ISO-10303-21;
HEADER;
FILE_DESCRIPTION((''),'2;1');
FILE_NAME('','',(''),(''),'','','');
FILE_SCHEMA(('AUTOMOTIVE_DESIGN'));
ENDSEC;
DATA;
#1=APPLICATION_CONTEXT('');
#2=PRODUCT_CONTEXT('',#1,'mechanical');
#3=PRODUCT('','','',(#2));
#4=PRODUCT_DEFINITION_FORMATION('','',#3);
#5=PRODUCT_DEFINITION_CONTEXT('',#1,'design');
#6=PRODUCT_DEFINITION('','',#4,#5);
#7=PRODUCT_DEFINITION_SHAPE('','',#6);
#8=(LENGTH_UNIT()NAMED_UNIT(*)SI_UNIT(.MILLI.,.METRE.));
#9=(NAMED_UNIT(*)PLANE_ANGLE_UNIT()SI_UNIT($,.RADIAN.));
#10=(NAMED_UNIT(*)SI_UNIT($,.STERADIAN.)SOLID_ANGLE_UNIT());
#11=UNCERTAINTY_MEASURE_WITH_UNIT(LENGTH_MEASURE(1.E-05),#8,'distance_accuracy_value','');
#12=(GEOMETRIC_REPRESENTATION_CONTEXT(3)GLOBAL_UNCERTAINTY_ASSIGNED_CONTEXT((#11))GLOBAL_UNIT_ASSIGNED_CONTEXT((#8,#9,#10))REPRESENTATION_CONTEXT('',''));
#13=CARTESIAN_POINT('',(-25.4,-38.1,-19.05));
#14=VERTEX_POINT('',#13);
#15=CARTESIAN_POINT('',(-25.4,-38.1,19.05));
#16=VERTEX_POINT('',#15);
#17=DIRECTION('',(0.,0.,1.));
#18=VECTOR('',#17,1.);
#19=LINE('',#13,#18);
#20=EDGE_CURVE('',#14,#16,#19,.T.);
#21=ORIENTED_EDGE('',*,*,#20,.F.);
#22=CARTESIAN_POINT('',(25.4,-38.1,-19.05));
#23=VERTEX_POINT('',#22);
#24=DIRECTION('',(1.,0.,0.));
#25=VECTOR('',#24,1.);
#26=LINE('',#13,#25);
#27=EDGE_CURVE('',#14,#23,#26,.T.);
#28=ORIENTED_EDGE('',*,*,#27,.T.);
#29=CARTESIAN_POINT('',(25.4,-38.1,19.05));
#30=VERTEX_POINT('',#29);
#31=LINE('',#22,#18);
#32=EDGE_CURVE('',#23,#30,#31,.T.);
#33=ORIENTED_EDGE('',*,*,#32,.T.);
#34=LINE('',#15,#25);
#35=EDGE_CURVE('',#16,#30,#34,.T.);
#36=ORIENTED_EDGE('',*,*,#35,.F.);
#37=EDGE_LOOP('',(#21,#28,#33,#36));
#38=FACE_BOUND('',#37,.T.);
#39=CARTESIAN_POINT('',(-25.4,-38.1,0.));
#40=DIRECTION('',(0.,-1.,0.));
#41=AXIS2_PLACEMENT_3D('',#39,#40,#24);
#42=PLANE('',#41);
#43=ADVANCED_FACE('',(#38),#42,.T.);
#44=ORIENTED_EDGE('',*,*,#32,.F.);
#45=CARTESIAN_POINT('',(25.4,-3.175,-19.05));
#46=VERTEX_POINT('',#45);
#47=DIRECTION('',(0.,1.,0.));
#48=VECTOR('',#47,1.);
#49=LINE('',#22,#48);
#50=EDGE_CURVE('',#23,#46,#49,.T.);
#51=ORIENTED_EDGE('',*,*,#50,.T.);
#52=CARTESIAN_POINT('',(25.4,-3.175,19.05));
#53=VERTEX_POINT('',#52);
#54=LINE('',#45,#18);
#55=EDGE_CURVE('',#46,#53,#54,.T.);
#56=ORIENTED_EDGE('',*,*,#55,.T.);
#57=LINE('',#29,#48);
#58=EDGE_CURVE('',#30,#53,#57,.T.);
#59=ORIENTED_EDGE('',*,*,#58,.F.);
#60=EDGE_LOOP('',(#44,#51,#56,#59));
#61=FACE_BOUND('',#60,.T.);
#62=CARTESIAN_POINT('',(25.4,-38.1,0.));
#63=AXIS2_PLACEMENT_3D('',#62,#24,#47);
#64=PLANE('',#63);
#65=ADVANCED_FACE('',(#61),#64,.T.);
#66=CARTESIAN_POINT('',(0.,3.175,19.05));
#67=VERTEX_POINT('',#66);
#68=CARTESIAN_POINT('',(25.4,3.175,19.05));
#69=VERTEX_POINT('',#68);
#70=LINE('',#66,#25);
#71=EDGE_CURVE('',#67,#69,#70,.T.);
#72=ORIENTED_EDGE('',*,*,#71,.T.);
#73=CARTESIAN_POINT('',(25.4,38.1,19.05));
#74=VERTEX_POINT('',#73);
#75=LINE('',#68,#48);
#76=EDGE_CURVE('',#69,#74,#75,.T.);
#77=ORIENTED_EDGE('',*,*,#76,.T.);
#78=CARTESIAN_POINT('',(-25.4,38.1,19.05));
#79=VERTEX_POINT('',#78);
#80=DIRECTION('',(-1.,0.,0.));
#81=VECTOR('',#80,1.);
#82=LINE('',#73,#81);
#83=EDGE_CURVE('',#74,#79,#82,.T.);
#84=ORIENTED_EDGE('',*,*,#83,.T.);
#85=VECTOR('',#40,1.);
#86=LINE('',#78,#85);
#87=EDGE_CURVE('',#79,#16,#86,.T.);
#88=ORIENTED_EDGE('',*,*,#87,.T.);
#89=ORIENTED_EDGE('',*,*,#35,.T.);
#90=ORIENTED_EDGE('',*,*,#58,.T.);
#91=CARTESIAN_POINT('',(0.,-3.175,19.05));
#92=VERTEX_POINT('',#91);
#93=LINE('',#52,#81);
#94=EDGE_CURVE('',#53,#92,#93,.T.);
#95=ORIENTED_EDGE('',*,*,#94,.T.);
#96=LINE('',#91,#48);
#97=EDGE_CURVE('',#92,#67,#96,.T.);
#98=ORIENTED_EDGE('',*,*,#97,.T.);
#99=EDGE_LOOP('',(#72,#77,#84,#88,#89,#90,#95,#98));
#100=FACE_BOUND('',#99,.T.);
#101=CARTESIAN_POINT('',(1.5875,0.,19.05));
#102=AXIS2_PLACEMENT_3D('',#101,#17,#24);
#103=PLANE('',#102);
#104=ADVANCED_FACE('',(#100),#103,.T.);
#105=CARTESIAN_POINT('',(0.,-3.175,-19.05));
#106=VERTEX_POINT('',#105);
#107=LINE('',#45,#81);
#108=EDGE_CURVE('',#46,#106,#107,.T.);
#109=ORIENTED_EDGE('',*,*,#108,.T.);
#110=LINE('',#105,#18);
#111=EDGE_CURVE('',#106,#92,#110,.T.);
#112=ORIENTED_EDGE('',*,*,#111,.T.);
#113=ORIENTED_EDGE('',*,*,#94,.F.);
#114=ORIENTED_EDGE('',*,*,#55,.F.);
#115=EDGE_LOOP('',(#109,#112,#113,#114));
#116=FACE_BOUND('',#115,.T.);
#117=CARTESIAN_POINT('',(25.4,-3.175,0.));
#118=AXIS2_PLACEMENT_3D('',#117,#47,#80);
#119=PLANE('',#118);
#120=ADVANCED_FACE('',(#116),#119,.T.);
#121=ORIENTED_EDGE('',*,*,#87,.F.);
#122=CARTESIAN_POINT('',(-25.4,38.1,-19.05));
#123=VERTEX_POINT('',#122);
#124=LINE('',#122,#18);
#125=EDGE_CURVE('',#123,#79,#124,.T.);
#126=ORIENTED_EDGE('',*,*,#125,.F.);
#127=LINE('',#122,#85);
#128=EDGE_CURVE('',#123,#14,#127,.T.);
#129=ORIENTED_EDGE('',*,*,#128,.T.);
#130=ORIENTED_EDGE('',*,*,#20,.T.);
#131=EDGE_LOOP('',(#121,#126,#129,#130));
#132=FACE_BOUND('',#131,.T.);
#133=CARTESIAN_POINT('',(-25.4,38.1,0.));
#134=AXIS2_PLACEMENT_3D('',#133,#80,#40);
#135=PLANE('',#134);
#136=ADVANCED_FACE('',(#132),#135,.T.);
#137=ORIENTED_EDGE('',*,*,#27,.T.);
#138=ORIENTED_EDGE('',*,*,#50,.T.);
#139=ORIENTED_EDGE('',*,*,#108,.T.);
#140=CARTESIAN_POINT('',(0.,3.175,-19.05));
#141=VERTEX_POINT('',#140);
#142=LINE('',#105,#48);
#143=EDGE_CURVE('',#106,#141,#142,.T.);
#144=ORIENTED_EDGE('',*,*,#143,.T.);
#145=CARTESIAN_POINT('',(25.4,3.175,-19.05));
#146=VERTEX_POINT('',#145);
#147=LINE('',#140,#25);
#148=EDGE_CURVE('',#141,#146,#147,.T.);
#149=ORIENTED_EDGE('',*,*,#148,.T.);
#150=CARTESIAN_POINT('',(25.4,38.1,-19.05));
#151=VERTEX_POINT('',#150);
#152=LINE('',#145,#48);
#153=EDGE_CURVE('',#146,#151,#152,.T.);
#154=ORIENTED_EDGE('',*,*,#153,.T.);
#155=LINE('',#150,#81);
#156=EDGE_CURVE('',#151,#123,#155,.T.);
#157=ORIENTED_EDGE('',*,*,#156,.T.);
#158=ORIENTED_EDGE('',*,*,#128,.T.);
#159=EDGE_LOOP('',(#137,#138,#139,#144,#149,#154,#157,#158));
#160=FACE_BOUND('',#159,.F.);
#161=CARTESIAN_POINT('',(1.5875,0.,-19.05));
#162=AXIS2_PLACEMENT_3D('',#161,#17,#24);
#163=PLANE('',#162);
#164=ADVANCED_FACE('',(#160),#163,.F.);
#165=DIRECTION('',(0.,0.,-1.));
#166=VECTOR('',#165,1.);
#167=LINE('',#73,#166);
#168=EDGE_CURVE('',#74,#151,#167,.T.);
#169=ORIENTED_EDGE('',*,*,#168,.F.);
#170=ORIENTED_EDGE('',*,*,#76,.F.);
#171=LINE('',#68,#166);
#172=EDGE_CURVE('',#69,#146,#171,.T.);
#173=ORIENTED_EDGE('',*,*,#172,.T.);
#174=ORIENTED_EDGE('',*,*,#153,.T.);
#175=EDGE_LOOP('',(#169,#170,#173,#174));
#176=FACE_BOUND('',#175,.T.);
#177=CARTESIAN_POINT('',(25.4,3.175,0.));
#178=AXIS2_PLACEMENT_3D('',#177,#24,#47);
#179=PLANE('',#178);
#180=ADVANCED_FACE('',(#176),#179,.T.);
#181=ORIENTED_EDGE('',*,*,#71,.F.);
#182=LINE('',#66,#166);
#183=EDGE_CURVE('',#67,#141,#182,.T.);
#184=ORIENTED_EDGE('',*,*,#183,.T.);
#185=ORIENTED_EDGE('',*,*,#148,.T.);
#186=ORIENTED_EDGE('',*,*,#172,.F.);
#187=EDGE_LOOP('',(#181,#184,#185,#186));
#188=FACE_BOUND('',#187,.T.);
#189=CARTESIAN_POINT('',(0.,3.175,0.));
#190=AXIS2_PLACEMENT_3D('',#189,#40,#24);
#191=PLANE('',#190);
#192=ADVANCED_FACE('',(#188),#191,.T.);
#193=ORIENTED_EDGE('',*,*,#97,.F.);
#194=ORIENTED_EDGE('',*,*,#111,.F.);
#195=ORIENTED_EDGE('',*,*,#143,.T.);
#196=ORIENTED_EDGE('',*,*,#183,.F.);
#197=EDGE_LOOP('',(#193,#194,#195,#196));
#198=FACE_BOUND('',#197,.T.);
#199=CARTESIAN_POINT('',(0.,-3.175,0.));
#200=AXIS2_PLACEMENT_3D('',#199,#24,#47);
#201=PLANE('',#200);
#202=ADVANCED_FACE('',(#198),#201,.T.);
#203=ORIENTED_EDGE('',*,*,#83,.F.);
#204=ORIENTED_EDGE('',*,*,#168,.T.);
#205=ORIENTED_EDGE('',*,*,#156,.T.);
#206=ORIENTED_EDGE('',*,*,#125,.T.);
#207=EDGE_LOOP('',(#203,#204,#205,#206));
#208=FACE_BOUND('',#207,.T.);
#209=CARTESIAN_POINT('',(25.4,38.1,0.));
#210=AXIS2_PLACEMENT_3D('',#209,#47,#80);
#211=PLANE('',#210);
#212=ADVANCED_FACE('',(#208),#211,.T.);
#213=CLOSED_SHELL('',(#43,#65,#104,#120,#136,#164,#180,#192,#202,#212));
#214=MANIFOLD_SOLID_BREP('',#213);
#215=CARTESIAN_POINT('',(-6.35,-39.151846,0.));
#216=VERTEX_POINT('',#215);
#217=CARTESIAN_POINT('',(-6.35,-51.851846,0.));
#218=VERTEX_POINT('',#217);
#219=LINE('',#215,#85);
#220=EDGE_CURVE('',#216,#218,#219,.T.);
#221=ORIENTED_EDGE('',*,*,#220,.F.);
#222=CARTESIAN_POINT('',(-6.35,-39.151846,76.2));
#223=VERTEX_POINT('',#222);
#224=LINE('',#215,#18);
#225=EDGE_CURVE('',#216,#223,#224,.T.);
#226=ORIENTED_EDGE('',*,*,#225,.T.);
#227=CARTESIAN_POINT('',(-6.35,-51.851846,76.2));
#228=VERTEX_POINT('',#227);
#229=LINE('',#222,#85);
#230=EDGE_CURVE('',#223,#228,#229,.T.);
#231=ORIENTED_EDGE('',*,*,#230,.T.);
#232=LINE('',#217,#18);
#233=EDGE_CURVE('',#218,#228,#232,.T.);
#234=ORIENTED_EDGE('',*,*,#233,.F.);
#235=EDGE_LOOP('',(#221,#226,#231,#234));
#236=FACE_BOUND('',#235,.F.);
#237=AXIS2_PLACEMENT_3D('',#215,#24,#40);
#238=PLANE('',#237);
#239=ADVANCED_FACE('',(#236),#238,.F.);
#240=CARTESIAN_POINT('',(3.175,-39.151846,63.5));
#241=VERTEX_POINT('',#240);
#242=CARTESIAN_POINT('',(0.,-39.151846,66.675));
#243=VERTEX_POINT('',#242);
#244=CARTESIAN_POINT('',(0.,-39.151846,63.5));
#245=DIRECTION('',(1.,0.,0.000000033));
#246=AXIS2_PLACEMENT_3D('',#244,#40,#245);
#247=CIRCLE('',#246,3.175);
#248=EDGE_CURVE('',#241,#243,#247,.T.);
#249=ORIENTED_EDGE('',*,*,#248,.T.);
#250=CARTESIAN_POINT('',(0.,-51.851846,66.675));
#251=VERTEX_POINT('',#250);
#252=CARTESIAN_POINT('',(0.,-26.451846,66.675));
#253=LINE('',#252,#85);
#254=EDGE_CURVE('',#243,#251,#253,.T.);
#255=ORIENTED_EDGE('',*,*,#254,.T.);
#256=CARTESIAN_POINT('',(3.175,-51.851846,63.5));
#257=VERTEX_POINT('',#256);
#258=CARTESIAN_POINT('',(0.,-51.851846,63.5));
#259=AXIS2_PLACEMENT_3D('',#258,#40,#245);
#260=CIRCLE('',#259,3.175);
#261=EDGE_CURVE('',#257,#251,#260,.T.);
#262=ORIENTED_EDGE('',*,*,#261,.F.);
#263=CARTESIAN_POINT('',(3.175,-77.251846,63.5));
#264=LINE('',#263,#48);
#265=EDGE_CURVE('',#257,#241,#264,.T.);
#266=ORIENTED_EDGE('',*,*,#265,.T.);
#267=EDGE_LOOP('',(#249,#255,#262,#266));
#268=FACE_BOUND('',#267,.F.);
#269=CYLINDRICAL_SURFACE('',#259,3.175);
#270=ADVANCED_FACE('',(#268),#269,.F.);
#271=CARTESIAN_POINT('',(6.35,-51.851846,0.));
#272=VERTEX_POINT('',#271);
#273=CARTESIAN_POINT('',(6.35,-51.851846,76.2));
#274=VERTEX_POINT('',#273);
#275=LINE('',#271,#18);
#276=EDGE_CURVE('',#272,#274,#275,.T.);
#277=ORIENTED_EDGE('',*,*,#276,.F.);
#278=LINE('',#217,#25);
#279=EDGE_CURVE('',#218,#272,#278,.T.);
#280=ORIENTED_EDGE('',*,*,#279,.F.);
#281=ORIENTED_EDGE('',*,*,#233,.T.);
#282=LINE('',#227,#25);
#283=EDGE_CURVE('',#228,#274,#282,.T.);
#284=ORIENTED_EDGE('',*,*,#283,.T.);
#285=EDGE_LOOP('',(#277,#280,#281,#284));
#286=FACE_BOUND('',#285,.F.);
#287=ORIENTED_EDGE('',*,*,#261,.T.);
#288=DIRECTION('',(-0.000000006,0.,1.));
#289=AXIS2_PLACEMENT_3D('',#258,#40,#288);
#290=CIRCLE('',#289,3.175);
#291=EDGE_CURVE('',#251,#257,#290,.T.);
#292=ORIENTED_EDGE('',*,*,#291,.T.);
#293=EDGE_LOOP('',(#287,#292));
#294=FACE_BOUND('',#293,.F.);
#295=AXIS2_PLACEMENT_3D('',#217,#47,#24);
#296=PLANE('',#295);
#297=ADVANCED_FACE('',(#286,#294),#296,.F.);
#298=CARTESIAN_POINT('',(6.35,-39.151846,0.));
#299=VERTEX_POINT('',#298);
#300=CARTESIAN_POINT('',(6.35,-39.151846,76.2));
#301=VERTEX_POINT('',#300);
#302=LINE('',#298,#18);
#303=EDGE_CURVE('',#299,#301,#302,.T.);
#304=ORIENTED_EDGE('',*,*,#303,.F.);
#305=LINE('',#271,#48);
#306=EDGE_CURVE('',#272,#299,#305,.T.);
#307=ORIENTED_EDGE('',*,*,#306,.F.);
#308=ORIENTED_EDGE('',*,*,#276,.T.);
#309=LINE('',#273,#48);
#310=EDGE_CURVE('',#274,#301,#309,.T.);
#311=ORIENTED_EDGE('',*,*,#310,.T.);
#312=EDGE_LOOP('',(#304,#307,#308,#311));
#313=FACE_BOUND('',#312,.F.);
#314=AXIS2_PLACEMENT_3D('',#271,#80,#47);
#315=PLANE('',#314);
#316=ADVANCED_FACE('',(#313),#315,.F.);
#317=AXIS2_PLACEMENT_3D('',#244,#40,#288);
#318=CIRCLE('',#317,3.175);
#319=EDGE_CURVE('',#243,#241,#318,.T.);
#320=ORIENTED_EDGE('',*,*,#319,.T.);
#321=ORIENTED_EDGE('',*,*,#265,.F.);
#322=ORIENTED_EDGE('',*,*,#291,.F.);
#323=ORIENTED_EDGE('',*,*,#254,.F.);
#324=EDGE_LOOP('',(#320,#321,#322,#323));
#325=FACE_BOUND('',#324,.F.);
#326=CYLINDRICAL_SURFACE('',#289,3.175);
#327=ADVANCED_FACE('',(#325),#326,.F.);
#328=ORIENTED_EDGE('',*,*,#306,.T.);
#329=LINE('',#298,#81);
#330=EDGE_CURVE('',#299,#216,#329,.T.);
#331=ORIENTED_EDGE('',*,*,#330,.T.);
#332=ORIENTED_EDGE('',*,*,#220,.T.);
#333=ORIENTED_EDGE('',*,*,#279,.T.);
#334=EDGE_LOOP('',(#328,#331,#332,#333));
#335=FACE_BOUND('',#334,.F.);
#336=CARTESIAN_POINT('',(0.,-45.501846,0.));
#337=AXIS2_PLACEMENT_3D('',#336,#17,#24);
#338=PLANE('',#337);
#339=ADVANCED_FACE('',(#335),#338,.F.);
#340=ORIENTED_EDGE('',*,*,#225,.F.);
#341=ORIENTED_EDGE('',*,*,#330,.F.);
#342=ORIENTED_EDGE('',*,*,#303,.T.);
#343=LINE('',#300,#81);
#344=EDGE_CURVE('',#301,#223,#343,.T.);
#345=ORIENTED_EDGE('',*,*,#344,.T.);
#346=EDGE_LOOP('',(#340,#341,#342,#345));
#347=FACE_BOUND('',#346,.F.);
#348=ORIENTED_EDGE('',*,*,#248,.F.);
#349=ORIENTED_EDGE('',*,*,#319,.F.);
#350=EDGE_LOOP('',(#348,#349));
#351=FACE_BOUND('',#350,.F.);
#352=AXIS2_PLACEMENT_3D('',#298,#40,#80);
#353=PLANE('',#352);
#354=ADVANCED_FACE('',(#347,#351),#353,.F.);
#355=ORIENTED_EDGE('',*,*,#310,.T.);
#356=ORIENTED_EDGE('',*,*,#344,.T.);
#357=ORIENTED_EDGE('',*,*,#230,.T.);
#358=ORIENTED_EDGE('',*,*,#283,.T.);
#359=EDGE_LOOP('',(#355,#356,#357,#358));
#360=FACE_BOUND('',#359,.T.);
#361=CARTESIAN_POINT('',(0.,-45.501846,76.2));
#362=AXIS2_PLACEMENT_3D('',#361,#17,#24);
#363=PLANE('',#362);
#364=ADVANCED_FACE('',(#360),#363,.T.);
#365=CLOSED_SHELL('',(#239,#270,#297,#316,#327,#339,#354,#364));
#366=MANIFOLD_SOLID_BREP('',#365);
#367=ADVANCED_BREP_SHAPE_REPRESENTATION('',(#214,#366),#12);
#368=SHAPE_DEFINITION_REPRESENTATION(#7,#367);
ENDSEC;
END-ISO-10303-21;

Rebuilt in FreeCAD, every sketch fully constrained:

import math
import FreeCAD as App
import Part
import Sketcher

V = App.Vector
Q = App.Units.Quantity


def add_polygon(sketch, points):
    """Adds a closed chain of lines whose ends are joined by coincident constraints."""
    first, n = sketch.GeometryCount, len(points)
    for a, b in zip(points, points[1:] + points[:1]):
        sketch.addGeometry(Part.LineSegment(App.Vector(*a, 0), App.Vector(*b, 0)), False)
    for i in range(n):
        sketch.addConstraint(Sketcher.Constraint("Coincident", first + i, 2, first + (i + 1) % n, 1))

doc = App.newDocument("Part")
body = doc.addObject("PartDesign::Body", "Body")

# Sketch on XY plane
sketch1 = body.newObject("Sketcher::SketchObject", "Sketch")
sketch1.AttachmentSupport = (doc.getObject("XY_Plane"), [""])
sketch1.MapMode = "FlatFace"
add_polygon(sketch1, [(25, 38), (-25, 38), (-25, -38), (25, -38), (25, -3), (0, -3), (0, 3), (25, 3)])  # lines 0-7
sketch1.addConstraint(Sketcher.Constraint("Horizontal", 0))
sketch1.addConstraint(Sketcher.Constraint("Vertical", 1))
sketch1.addConstraint(Sketcher.Constraint("Horizontal", 2))
sketch1.addConstraint(Sketcher.Constraint("Vertical", 3))
sketch1.addConstraint(Sketcher.Constraint("Horizontal", 4))
sketch1.addConstraint(Sketcher.Constraint("Vertical", 5))
sketch1.addConstraint(Sketcher.Constraint("Horizontal", 6))
sketch1.addConstraint(Sketcher.Constraint("Vertical", 7))
sketch1.addConstraint(Sketcher.Constraint("Symmetric", 0, 2, 2, 2, -1, 1))
sketch1.addConstraint(Sketcher.Constraint("Symmetric", 4, 2, 5, 2, -1, 1))
sketch1.addConstraint(Sketcher.Constraint("Vertical", 3, 2, 6, 2))
sketch1.addConstraint(Sketcher.Constraint("DistanceX", 0, 2, 0, 1, Q("2 in")))
sketch1.addConstraint(Sketcher.Constraint("DistanceY", 1, 2, 1, 1, Q("3 in")))
sketch1.addConstraint(Sketcher.Constraint("DistanceY", 5, 1, 5, 2, Q("0.25 in")))
pad1 = body.newObject("PartDesign::Pad", "Pad")
pad1.Profile = sketch1
pad1.Length = Q("1.5 in")
pad1.Midplane = True
body2 = doc.addObject("PartDesign::Body", "Body001")

# Sketch on XY plane
sketch2 = body2.newObject("Sketcher::SketchObject", "Sketch001")
sketch2.AttachmentSupport = (doc.getObject("XY_Plane001"), [""])
sketch2.MapMode = "FlatFace"
add_polygon(sketch2, [(6, -39), (-6, -39), (-6, -52), (6, -52)])  # lines 0-3
sketch2.addConstraint(Sketcher.Constraint("Horizontal", 0))
sketch2.addConstraint(Sketcher.Constraint("Vertical", 1))
sketch2.addConstraint(Sketcher.Constraint("Horizontal", 2))
sketch2.addConstraint(Sketcher.Constraint("Vertical", 3))
sketch2.addConstraint(Sketcher.Constraint("Equal", 2, 1))
sketch2.addConstraint(Sketcher.Constraint("DistanceX", 0, 2, 0, 1, Q("0.5 in")))
sketch2.addConstraint(Sketcher.Constraint("DistanceX", 0, 2, -1, 1, Q("0.25 in")))
sketch2.addConstraint(Sketcher.Constraint("DistanceY", 0, 2, -1, 1, Q("39.151846 mm")))
pad2 = body2.newObject("PartDesign::Pad", "Pad001")
pad2.Profile = sketch2
pad2.Length = Q("3 in")

# Sketch on XZ plane
sketch3 = body2.newObject("Sketcher::SketchObject", "Sketch002")
sketch3.AttachmentSupport = (doc.getObject("XZ_Plane001"), [""])
sketch3.MapMode = "FlatFace"
sketch3.AttachmentOffset = App.Placement(V(0, 0, 51.851846), App.Rotation())
sketch3.addGeometry(Part.ArcOfCircle(Part.Circle(V(0, 63.5, 0), V(0, 0, 1), 3.2), math.radians(0), math.radians(90)), False)
sketch3.addGeometry(Part.ArcOfCircle(Part.Circle(V(0, 63.5, 0), V(0, 0, 1), 3.2), math.radians(90), math.radians(360)), False)
sketch3.addConstraint(Sketcher.Constraint("Tangent", 0, 1, 1, 2))
sketch3.addConstraint(Sketcher.Constraint("Coincident", 1, 1, 0, 2))
sketch3.addConstraint(Sketcher.Constraint("PointOnObject", 0, 3, -2))
sketch3.addConstraint(Sketcher.Constraint("PointOnObject", 1, 1, -2))
sketch3.addConstraint(Sketcher.Constraint("Horizontal", 1, 3, 0, 1))
sketch3.addConstraint(Sketcher.Constraint("Radius", 0, Q("0.125 in")))
sketch3.addConstraint(Sketcher.Constraint("DistanceY", -1, 1, 0, 3, Q("2.5 in")))
pocket1 = body2.newObject("PartDesign::Pocket", "Pocket")
pocket1.Profile = sketch3
pocket1.Length = Q("2 in")
pocket1.Midplane = True

doc.recompute()
